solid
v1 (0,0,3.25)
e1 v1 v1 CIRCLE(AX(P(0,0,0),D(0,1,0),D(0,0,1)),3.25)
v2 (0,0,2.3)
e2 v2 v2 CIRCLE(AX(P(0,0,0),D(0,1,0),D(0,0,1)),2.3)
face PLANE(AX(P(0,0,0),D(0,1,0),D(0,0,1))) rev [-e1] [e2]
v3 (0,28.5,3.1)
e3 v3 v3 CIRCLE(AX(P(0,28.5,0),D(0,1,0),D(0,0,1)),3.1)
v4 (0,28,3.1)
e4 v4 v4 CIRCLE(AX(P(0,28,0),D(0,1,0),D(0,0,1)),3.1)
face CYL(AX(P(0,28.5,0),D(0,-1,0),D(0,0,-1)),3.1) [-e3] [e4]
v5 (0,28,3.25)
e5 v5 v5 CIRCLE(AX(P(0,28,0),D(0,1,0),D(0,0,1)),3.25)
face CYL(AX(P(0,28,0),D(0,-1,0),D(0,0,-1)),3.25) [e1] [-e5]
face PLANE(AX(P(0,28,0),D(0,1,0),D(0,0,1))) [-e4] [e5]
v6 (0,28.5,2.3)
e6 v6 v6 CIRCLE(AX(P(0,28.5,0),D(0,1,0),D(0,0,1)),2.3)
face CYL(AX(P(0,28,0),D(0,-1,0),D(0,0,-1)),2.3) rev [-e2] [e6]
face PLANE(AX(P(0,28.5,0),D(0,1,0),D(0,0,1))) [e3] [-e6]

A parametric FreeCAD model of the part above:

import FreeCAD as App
import Part
import Sketcher

V = App.Vector

doc = App.newDocument("Part")
body = doc.addObject("PartDesign::Body", "Body")

sketch1 = body.newObject("Sketcher::SketchObject", "Sketch")
sketch1.AttachmentSupport = (doc.getObject("XZ_Plane"), [""])
sketch1.MapMode = "FlatFace"
sketch1.addGeometry([
    Part.Circle(V(0, 0, 0), V(0, 0, 1), 3.2),
    Part.Circle(V(0, 0, 0), V(0, 0, 1), 2.3),
], False)
sketch1.addConstraint([
    Sketcher.Constraint("Coincident", 0, 3, -1, 1),
    Sketcher.Constraint("Coincident", 1, 3, -1, 1),
    Sketcher.Constraint("Diameter", 0, 6.5),
    Sketcher.Constraint("Diameter", 1, 4.6),
])
pad1 = body.newObject("PartDesign::Pad", "Pad")
pad1.Profile = sketch1
pad1.Length = 28
pad1.Reversed = True

sketch2 = body.newObject("Sketcher::SketchObject", "Sketch001")
sketch2.AttachmentSupport = (doc.getObject("XZ_Plane"), [""])
sketch2.MapMode = "FlatFace"
sketch2.AttachmentOffset = App.Placement(V(0, 0, -28), App.Rotation())
sketch2.addGeometry([
    Part.Circle(V(0, 0, 0), V(0, 0, 1), 3.1),
    Part.Circle(V(0, 0, 0), V(0, 0, 1), 2.3),
], False)
sketch2.addConstraint([
    Sketcher.Constraint("Coincident", 0, 3, -1, 1),
    Sketcher.Constraint("Coincident", 1, 3, -1, 1),
    Sketcher.Constraint("Diameter", 0, 6.2),
    Sketcher.Constraint("Diameter", 1, 4.6),
])
pad2 = body.newObject("PartDesign::Pad", "Pad001")
pad2.Profile = sketch2
pad2.Length = 0.5
pad2.Reversed = True

doc.recompute()
